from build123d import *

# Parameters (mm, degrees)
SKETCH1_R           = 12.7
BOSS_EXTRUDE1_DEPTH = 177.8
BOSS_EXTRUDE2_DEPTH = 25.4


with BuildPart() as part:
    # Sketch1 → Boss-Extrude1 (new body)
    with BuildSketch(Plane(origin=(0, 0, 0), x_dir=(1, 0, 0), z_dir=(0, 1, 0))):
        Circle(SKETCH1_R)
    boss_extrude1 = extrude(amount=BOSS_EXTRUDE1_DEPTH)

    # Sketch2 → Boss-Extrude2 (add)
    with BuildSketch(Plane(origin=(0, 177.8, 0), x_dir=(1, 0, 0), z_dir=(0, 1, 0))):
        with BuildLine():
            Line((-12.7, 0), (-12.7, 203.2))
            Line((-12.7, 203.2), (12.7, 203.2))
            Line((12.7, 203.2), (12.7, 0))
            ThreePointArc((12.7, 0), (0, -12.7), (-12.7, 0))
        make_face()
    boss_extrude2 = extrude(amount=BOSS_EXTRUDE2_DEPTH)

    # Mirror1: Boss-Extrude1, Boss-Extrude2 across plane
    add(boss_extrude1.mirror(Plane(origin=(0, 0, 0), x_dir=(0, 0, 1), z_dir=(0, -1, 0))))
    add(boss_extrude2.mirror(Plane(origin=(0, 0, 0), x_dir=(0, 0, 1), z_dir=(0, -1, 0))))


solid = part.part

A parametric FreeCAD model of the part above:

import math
import FreeCAD as App
import Part
import Sketcher

V = App.Vector
Q = App.Units.Quantity

doc = App.newDocument("Part")
body = doc.addObject("PartDesign::Body", "Body")

# Sketch on XZ plane
sketch1 = doc.addObject("Sketcher::SketchObject", "Sketch")
body.addObject(sketch1)
sketch1.AttachmentSupport = (doc.XZ_Plane, [""])
sketch1.MapMode = "FlatFace"
sketch1.addGeometry(Part.Circle(V(0, 0, 0), V(0, 0, 1), 12.7), False)
sketch1.addConstraint(Sketcher.Constraint("Coincident", 0, 3, -1, 1))
sketch1.addConstraint(Sketcher.Constraint("Diameter", 0, Q("1 in")))
pad1 = doc.addObject("PartDesign::Pad", "Pad")
body.addObject(pad1)
pad1.Profile = sketch1
pad1.Length = Q("7 in")
pad1.Reversed = True

# Sketch on XZ plane
sketch2 = doc.addObject("Sketcher::SketchObject", "Sketch001")
body.addObject(sketch2)
sketch2.AttachmentSupport = (doc.XZ_Plane, [""])
sketch2.MapMode = "FlatFace"
sketch2.AttachmentOffset = App.Placement(V(0, 0, -7 * 25.4), App.Rotation())
sketch2.addGeometry(Part.LineSegment(V(-12.7, -203.2, 0), V(-12.7, 0, 0)), False)
sketch2.addGeometry(Part.ArcOfCircle(Part.Circle(V(0, 0, 0), V(0, 0, 1), 12.7), math.radians(0), math.radians(180)), False)
sketch2.addGeometry(Part.LineSegment(V(12.7, 0, 0), V(12.7, -203.2, 0)), False)
sketch2.addGeometry(Part.LineSegment(V(12.7, -203.2, 0), V(-12.7, -203.2, 0)), False)
sketch2.addConstraint(Sketcher.Constraint("Tangent", 0, 2, 1, 2))
sketch2.addConstraint(Sketcher.Constraint("Tangent", 1, 1, 2, 1))
sketch2.addConstraint(Sketcher.Constraint("Coincident", 2, 2, 3, 1))
sketch2.addConstraint(Sketcher.Constraint("Coincident", 3, 2, 0, 1))
sketch2.addConstraint(Sketcher.Constraint("Vertical", 0))
sketch2.addConstraint(Sketcher.Constraint("Vertical", 2))
sketch2.addConstraint(Sketcher.Constraint("Horizontal", 3))
sketch2.addConstraint(Sketcher.Constraint("Coincident", 1, 3, -1, 1))
sketch2.addConstraint(Sketcher.Constraint("Radius", 1, Q("0.5 in")))
sketch2.addConstraint(Sketcher.Constraint("DistanceY", 0, 1, 0, 2, Q("8 in")))
pad2 = doc.addObject("PartDesign::Pad", "Pad001")
body.addObject(pad2)
pad2.Profile = sketch2
pad2.Length = Q("1 in")
pad2.Reversed = True
doc.recompute()

mirrored = doc.addObject("PartDesign::Mirrored", "Mirrored")
body.addObject(mirrored)
mirrored.Originals = [pad1, pad2]
mirrored.MirrorPlane = (doc.XZ_Plane, [""])
body.Tip = mirrored

doc.recompute()
